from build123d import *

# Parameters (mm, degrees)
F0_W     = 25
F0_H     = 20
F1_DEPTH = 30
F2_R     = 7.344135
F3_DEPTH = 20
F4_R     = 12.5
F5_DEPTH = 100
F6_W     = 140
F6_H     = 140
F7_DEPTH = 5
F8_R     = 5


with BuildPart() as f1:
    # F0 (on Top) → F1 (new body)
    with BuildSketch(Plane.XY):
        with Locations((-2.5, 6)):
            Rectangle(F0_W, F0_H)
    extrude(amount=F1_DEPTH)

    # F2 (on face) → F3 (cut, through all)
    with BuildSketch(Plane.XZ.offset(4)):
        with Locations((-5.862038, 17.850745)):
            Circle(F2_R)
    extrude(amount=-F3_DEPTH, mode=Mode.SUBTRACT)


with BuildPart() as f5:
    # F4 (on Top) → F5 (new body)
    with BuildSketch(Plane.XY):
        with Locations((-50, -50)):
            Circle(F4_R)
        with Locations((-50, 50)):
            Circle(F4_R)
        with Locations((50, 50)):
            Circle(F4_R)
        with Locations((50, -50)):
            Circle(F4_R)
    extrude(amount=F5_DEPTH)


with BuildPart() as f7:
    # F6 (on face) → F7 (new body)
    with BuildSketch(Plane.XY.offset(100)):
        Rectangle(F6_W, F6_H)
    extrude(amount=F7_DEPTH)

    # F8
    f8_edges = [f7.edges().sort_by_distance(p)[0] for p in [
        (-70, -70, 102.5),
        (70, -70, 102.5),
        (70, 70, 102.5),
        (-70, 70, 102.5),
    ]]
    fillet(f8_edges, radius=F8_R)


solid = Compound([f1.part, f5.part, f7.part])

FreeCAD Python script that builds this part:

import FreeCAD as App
import Part
import Sketcher

V = App.Vector


def edges_at(feature, points):
    """Names of the edges that pass closest to the given points."""
    edges = feature.Shape.Edges
    near = lambda p: min(range(len(edges)), key=lambda i: edges[i].distToShape(Part.Vertex(*p))[0])
    return sorted({f"Edge{near(p) + 1}" for p in points})

doc = App.newDocument("Part")
body = doc.addObject("PartDesign::Body", "Body")

# Sketch on XY plane
sketch1 = doc.addObject("Sketcher::SketchObject", "Sketch")
body.addObject(sketch1)
sketch1.AttachmentSupport = (doc.XY_Plane, [""])
sketch1.MapMode = "FlatFace"
sketch1.addGeometry(Part.LineSegment(V(-15, 16, 0), V(-15, -4, 0)), False)
sketch1.addGeometry(Part.LineSegment(V(-15, -4, 0), V(10, -4, 0)), False)
sketch1.addGeometry(Part.LineSegment(V(10, -4, 0), V(10, 16, 0)), False)
sketch1.addGeometry(Part.LineSegment(V(10, 16, 0), V(-15, 16, 0)), False)
sketch1.addConstraint(Sketcher.Constraint("Coincident", 0, 2, 1, 1))
sketch1.addConstraint(Sketcher.Constraint("Coincident", 1, 2, 2, 1))
sketch1.addConstraint(Sketcher.Constraint("Coincident", 2, 2, 3, 1))
sketch1.addConstraint(Sketcher.Constraint("Coincident", 3, 2, 0, 1))
sketch1.addConstraint(Sketcher.Constraint("Vertical", 0))
sketch1.addConstraint(Sketcher.Constraint("Horizontal", 1))
sketch1.addConstraint(Sketcher.Constraint("Vertical", 2))
sketch1.addConstraint(Sketcher.Constraint("Horizontal", 3))
sketch1.addConstraint(Sketcher.Constraint("DistanceX", 1, 1, 1, 2, 25.0))
sketch1.addConstraint(Sketcher.Constraint("DistanceY", 0, 2, 0, 1, 20.0))
sketch1.addConstraint(Sketcher.Constraint("DistanceX", 0, 2, -1, 1, 15.0))
sketch1.addConstraint(Sketcher.Constraint("DistanceY", 0, 2, -1, 1, 4.0))
pad1 = doc.addObject("PartDesign::Pad", "Pad")
body.addObject(pad1)
pad1.Profile = sketch1
pad1.Length = 30

# Sketch on XZ plane
sketch2 = doc.addObject("Sketcher::SketchObject", "Sketch001")
body.addObject(sketch2)
sketch2.AttachmentSupport = (doc.XZ_Plane, [""])
sketch2.MapMode = "FlatFace"
sketch2.AttachmentOffset = App.Placement(V(0, 0, 4), App.Rotation())
sketch2.addGeometry(Part.Circle(V(-6, 18, 0), V(0, 0, 1), 7), False)
sketch2.addConstraint(Sketcher.Constraint("Diameter", 0, 14.68827))
sketch2.addConstraint(Sketcher.Constraint("DistanceX", 0, 3, -1, 1, 5.862038))
sketch2.addConstraint(Sketcher.Constraint("DistanceY", -1, 1, 0, 3, 17.850745))
pocket1 = doc.addObject("PartDesign::Pocket", "Pocket")
body.addObject(pocket1)
pocket1.Profile = sketch2
pocket1.Type = "ThroughAll"
body2 = doc.addObject("PartDesign::Body", "Body001")
body2.AllowCompound = True

# Sketch on XY plane
sketch3 = doc.addObject("Sketcher::SketchObject", "Sketch002")
body2.addObject(sketch3)
sketch3.AttachmentSupport = (doc.getObject("XY_Plane001"), [""])
sketch3.MapMode = "FlatFace"
sketch3.addGeometry(Part.Circle(V(-50, -50, 0), V(0, 0, 1), 12), False)
sketch3.addGeometry(Part.Circle(V(-50, 50, 0), V(0, 0, 1), 12), False)
sketch3.addGeometry(Part.Circle(V(50, 50, 0), V(0, 0, 1), 12), False)
sketch3.addGeometry(Part.Circle(V(50, -50, 0), V(0, 0, 1), 12), False)
sketch3.addConstraint(Sketcher.Constraint("Equal", 0, 1))
sketch3.addConstraint(Sketcher.Constraint("Equal", 1, 2))
sketch3.addConstraint(Sketcher.Constraint("Equal", 2, 3))
sketch3.addConstraint(Sketcher.Constraint("Symmetric", 0, 3, 2, 3, -1, 1))
sketch3.addConstraint(Sketcher.Constraint("Symmetric", 1, 3, 3, 3, -1, 1))
sketch3.addConstraint(Sketcher.Constraint("Symmetric", 1, 3, 2, 3, -2))
sketch3.addConstraint(Sketcher.Constraint("Diameter", 0, 25.0))
sketch3.addConstraint(Sketcher.Constraint("DistanceX", 0, 3, -1, 1, 50.0))
sketch3.addConstraint(Sketcher.Constraint("DistanceY", 0, 3, -1, 1, 50.0))
pad2 = doc.addObject("PartDesign::Pad", "Pad001")
body2.addObject(pad2)
pad2.Profile = sketch3
pad2.Length = 100
body3 = doc.addObject("PartDesign::Body", "Body002")

# Sketch on XY plane
sketch4 = doc.addObject("Sketcher::SketchObject", "Sketch003")
body3.addObject(sketch4)
sketch4.AttachmentSupport = (doc.getObject("XY_Plane002"), [""])
sketch4.MapMode = "FlatFace"
sketch4.AttachmentOffset = App.Placement(V(0, 0, 100), App.Rotation())
sketch4.addGeometry(Part.LineSegment(V(-70, 70, 0), V(-70, -70, 0)), False)
sketch4.addGeometry(Part.LineSegment(V(-70, -70, 0), V(70, -70, 0)), False)
sketch4.addGeometry(Part.LineSegment(V(70, -70, 0), V(70, 70, 0)), False)
sketch4.addGeometry(Part.LineSegment(V(70, 70, 0), V(-70, 70, 0)), False)
sketch4.addConstraint(Sketcher.Constraint("Coincident", 0, 2, 1, 1))
sketch4.addConstraint(Sketcher.Constraint("Coincident", 1, 2, 2, 1))
sketch4.addConstraint(Sketcher.Constraint("Coincident", 2, 2, 3, 1))
sketch4.addConstraint(Sketcher.Constraint("Coincident", 3, 2, 0, 1))
sketch4.addConstraint(Sketcher.Constraint("Vertical", 0))
sketch4.addConstraint(Sketcher.Constraint("Horizontal", 1))
sketch4.addConstraint(Sketcher.Constraint("Vertical", 2))
sketch4.addConstraint(Sketcher.Constraint("Horizontal", 3))
sketch4.addConstraint(Sketcher.Constraint("Symmetric", 0, 2, 2, 2, -1, 1))
sketch4.addConstraint(Sketcher.Constraint("Equal", 3, 0))
sketch4.addConstraint(Sketcher.Constraint("DistanceX", 1, 1, 1, 2, 140.0))
pad3 = doc.addObject("PartDesign::Pad", "Pad002")
body3.addObject(pad3)
pad3.Profile = sketch4
pad3.Length = 5
doc.recompute()

fillet = doc.addObject("PartDesign::Fillet", "Fillet")
body3.addObject(fillet)
fillet.Base = (pad3, edges_at(pad3, [
    (-70, -70, 102.5),
    (70, -70, 102.5),
    (70, 70, 102.5),
    (-70, 70, 102.5),
]))
fillet.Radius = 5

doc.recompute()
